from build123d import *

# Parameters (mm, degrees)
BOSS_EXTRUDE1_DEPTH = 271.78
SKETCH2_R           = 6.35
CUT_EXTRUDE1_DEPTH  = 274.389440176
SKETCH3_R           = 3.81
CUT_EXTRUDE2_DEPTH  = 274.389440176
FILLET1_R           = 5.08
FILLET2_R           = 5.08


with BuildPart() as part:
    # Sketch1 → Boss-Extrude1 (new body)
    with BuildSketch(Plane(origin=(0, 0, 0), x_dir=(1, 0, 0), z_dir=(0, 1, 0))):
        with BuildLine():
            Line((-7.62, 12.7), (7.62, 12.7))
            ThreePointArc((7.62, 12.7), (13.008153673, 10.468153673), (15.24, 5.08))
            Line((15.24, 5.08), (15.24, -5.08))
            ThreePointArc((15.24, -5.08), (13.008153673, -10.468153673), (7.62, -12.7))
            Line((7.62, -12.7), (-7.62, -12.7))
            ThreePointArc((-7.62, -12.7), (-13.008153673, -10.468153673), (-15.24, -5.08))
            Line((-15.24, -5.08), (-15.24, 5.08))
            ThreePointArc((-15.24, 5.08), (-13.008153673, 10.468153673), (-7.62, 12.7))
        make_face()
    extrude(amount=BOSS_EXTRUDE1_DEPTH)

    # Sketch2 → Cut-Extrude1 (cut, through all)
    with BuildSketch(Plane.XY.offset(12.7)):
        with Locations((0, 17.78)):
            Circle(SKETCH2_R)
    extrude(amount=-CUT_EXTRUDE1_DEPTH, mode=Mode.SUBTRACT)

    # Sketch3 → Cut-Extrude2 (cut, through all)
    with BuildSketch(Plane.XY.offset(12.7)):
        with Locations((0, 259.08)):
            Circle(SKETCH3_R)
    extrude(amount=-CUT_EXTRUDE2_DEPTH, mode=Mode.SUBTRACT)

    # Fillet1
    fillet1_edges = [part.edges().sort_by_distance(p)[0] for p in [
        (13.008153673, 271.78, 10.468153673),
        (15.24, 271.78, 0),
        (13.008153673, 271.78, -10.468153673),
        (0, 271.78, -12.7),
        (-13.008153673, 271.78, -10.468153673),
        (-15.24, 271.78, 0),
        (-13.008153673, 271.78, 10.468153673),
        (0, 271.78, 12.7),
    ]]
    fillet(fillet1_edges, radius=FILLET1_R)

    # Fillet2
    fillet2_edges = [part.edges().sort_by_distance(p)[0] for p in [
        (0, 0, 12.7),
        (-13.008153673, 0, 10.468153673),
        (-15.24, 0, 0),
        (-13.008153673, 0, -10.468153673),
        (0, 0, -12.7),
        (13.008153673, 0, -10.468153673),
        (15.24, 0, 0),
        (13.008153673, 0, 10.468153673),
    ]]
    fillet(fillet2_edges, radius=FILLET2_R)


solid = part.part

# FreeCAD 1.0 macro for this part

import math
import FreeCAD as App
import Part
import Sketcher

V = App.Vector
Q = App.Units.Quantity


def edges_at(feature, points):
    """Names of the edges that pass closest to the given points."""
    edges = feature.Shape.Edges
    near = lambda p: min(range(len(edges)), key=lambda i: edges[i].distToShape(Part.Vertex(*p))[0])
    return sorted({f"Edge{near(p) + 1}" for p in points})

doc = App.newDocument("Part")
body = doc.addObject("PartDesign::Body", "Body")

sketch1 = body.newObject("Sketcher::SketchObject", "Sketch")
sketch1.AttachmentSupport = (doc.getObject("XZ_Plane"), [""])
sketch1.MapMode = "FlatFace"
sketch1.addGeometry(Part.LineSegment(V(8, -13, 0), V(-8, -13, 0)), False)
sketch1.addGeometry(Part.ArcOfCircle(Part.Circle(V(-8, -5, 0), V(0, 0, 1), 8), math.radians(180), math.radians(270)), False)
sketch1.addGeometry(Part.LineSegment(V(-15, -5, 0), V(-15, 5, 0)), False)
sketch1.addGeometry(Part.ArcOfCircle(Part.Circle(V(-8, 5, 0), V(0, 0, 1), 8), math.radians(90), math.radians(180)), False)
sketch1.addGeometry(Part.LineSegment(V(-8, 13, 0), V(8, 13, 0)), False)
sketch1.addGeometry(Part.ArcOfCircle(Part.Circle(V(8, 5, 0), V(0, 0, 1), 8), math.radians(0), math.radians(90)), False)
sketch1.addGeometry(Part.LineSegment(V(15, 5, 0), V(15, -5, 0)), False)
sketch1.addGeometry(Part.ArcOfCircle(Part.Circle(V(8, -5, 0), V(0, 0, 1), 8), math.radians(-90), math.radians(0)), False)
sketch1.addConstraint(Sketcher.Constraint("Tangent", 0, 2, 1, 2))
sketch1.addConstraint(Sketcher.Constraint("Tangent", 1, 1, 2, 1))
sketch1.addConstraint(Sketcher.Constraint("Tangent", 2, 2, 3, 2))
sketch1.addConstraint(Sketcher.Constraint("Tangent", 3, 1, 4, 1))
sketch1.addConstraint(Sketcher.Constraint("Tangent", 4, 2, 5, 2))
sketch1.addConstraint(Sketcher.Constraint("Tangent", 5, 1, 6, 1))
sketch1.addConstraint(Sketcher.Constraint("Tangent", 6, 2, 7, 2))
sketch1.addConstraint(Sketcher.Constraint("Tangent", 7, 1, 0, 1))
sketch1.addConstraint(Sketcher.Constraint("Horizontal", 0))
sketch1.addConstraint(Sketcher.Constraint("Vertical", 2))
sketch1.addConstraint(Sketcher.Constraint("Horizontal", 4))
sketch1.addConstraint(Sketcher.Constraint("Vertical", 6))
sketch1.addConstraint(Sketcher.Constraint("Equal", 1, 3))
sketch1.addConstraint(Sketcher.Constraint("Equal", 3, 5))
sketch1.addConstraint(Sketcher.Constraint("Equal", 5, 7))
sketch1.addConstraint(Sketcher.Constraint("Symmetric", 1, 3, 5, 3, -1, 1))
sketch1.addConstraint(Sketcher.Constraint("Radius", 1, Q("0.3 in")))
sketch1.addConstraint(Sketcher.Constraint("DistanceX", 0, 2, 0, 1, Q("0.6 in")))
sketch1.addConstraint(Sketcher.Constraint("DistanceY", 2, 1, 2, 2, Q("0.4 in")))
pad1 = body.newObject("PartDesign::Pad", "Pad")
pad1.Profile = sketch1
pad1.Length = Q("10.7 in")
pad1.Reversed = True

sketch2 = body.newObject("Sketcher::SketchObject", "Sketch001")
sketch2.AttachmentSupport = (doc.getObject("XY_Plane"), [""])
sketch2.MapMode = "FlatFace"
sketch2.AttachmentOffset = App.Placement(V(0, 0, 0.5 * 25.4), App.Rotation())
sketch2.addGeometry(Part.Circle(V(0, 18, 0), V(0, 0, 1), 6), False)
sketch2.addConstraint(Sketcher.Constraint("PointOnObject", 0, 3, -2))
sketch2.addConstraint(Sketcher.Constraint("Diameter", 0, Q("0.5 in")))
sketch2.addConstraint(Sketcher.Constraint("DistanceY", -1, 1, 0, 3, Q("0.7 in")))
pocket1 = body.newObject("PartDesign::Pocket", "Pocket")
pocket1.Profile = sketch2
pocket1.Type = "ThroughAll"

sketch3 = body.newObject("Sketcher::SketchObject", "Sketch002")
sketch3.AttachmentSupport = (doc.getObject("XY_Plane"), [""])
sketch3.MapMode = "FlatFace"
sketch3.AttachmentOffset = App.Placement(V(0, 0, 0.5 * 25.4), App.Rotation())
sketch3.addGeometry(Part.Circle(V(0, 259.1, 0), V(0, 0, 1), 3.8), False)
sketch3.addConstraint(Sketcher.Constraint("PointOnObject", 0, 3, -2))
sketch3.addConstraint(Sketcher.Constraint("Diameter", 0, Q("0.3 in")))
sketch3.addConstraint(Sketcher.Constraint("DistanceY", -1, 1, 0, 3, Q("10.2 in")))
pocket2 = body.newObject("PartDesign::Pocket", "Pocket001")
pocket2.Profile = sketch3
pocket2.Type = "ThroughAll"
doc.recompute()

fillet = body.newObject("PartDesign::Fillet", "Fillet")
fillet.Base = (pocket2, edges_at(pocket2, [
    (13.008, 271.78, 10.468),
    (15.24, 271.78, 0),
    (13.008, 271.78, -10.468),
    (0, 271.78, -12.7),
    (-13.008, 271.78, -10.468),
    (-15.24, 271.78, 0),
    (-13.008, 271.78, 10.468),
    (0, 271.78, 12.7),
]))
fillet.Radius = Q("0.2 in")
doc.recompute()

fillet2 = body.newObject("PartDesign::Fillet", "Fillet001")
fillet2.Base = (fillet, edges_at(fillet, [
    (0, 0, 12.7),
    (-13.008, 0, 10.468),
    (-15.24, 0, 0),
    (-13.008, 0, -10.468),
    (0, 0, -12.7),
    (13.008, 0, -10.468),
    (15.24, 0, 0),
    (13.008, 0, 10.468),
]))
fillet2.Radius = Q("0.2 in")

doc.recompute()
